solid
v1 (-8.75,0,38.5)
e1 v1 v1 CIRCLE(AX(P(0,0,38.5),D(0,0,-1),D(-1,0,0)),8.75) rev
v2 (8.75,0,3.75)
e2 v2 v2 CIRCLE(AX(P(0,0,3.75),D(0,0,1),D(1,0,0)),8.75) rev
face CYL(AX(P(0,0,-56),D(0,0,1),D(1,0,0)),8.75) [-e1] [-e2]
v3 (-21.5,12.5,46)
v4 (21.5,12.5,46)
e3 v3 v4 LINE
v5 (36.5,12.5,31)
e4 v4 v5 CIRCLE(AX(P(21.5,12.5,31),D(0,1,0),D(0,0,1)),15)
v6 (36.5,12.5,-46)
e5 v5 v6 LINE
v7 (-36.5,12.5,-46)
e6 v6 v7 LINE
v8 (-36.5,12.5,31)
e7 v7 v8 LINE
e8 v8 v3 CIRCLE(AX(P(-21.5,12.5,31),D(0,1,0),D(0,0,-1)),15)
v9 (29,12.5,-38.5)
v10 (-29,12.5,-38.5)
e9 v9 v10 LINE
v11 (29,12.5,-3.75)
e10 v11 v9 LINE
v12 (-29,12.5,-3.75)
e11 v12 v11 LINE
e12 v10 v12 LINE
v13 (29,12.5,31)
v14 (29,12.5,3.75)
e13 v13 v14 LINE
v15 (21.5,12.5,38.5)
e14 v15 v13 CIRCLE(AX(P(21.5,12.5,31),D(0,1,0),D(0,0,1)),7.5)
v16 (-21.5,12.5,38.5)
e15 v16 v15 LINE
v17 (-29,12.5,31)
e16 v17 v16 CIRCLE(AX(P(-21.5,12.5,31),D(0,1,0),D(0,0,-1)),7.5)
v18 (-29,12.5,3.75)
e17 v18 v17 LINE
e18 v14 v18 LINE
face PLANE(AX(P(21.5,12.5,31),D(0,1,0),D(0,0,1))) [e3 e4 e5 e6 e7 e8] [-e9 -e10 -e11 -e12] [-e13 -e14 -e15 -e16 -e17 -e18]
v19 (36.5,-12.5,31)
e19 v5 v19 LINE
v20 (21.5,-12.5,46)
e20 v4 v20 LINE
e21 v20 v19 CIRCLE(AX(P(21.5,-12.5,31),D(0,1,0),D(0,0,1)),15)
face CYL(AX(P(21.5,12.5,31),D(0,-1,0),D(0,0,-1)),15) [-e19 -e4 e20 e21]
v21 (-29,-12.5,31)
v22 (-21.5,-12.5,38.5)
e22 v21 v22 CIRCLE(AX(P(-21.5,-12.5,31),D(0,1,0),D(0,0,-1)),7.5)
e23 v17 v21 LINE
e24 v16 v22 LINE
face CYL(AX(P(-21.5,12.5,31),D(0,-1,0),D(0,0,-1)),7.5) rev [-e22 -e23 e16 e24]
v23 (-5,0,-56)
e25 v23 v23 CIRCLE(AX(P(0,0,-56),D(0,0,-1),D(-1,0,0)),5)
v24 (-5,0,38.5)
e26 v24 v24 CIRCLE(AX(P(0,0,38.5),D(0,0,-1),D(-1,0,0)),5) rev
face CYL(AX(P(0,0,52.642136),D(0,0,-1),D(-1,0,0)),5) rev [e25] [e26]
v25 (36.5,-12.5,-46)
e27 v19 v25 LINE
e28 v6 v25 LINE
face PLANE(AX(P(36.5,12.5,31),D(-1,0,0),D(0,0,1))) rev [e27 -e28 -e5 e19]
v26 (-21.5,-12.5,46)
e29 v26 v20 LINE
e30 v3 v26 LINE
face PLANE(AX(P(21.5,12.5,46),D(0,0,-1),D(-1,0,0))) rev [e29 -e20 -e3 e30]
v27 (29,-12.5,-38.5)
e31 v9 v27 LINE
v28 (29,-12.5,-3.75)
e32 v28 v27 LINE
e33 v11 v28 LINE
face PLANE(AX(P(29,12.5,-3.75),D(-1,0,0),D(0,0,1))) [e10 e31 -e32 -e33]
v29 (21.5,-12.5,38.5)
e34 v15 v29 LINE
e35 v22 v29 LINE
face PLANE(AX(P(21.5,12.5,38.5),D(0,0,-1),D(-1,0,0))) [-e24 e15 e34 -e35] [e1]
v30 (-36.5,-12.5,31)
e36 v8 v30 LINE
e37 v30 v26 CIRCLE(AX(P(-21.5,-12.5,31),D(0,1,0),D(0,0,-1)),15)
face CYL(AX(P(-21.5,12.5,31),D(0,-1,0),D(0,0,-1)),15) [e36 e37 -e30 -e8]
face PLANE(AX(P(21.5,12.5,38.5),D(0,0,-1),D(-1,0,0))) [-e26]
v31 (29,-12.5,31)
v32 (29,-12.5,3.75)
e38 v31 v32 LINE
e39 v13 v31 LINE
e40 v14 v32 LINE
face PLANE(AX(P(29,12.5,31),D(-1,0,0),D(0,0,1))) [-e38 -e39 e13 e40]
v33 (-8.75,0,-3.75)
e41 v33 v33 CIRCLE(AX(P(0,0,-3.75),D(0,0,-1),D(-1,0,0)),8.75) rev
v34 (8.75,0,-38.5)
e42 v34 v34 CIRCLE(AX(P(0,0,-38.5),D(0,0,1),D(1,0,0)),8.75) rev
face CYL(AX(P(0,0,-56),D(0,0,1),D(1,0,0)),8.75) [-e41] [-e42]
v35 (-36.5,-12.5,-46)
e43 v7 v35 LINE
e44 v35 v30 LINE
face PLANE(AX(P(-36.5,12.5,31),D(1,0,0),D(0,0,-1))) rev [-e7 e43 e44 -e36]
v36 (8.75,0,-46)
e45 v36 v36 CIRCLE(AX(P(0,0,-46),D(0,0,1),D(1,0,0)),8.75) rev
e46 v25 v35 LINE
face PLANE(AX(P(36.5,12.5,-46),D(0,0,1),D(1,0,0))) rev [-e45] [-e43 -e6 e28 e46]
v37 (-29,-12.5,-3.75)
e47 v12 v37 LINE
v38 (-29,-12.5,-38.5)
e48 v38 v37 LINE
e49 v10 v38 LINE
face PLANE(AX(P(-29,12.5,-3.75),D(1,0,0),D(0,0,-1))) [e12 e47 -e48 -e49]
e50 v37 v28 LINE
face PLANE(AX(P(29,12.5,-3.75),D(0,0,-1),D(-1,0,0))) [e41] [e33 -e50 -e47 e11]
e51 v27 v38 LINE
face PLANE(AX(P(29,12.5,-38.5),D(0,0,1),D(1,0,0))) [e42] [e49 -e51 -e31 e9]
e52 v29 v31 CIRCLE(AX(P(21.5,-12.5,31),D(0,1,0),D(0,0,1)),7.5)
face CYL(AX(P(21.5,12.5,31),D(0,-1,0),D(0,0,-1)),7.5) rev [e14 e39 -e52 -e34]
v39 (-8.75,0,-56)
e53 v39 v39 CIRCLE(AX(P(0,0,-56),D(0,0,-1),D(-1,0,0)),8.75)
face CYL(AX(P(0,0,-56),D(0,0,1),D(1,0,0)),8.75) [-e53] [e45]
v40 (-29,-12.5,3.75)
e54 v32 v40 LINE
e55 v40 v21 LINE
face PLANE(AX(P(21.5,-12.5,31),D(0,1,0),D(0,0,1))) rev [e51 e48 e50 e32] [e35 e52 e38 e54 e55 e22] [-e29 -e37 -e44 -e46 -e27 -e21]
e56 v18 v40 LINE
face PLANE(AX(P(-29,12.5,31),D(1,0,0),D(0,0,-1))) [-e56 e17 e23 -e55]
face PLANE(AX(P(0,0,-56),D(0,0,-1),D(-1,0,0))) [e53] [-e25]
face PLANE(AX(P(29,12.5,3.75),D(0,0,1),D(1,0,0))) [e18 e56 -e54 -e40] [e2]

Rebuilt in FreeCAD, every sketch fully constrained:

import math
import FreeCAD as App
import Part
import Sketcher

V = App.Vector
Q = App.Units.Quantity


def add_polygon(sketch, points):
    """Adds a closed chain of lines whose ends are joined by coincident constraints."""
    first, n = sketch.GeometryCount, len(points)
    for a, b in zip(points, points[1:] + points[:1]):
        sketch.addGeometry(Part.LineSegment(App.Vector(*a, 0), App.Vector(*b, 0)), False)
    for i in range(n):
        sketch.addConstraint(Sketcher.Constraint("Coincident", first + i, 2, first + (i + 1) % n, 1))

doc = App.newDocument("Part")
params = doc.addObject("Spreadsheet::Sheet", "Params")
for row, (alias, value) in enumerate([
    ("sketch1_radius", "15 mm"),
    ("sketch1_radius2", "7.5 mm"),
    ("sketch1_width", "43 mm"),
    ("sketch1_height", "77 mm"),
    ("sketch1_height2", "27.25 mm"),
    ("pad1_length", "25 mm"),
    ("sketch2_diameter", "17.5 mm"),
    ("pad2_length", "10 mm"),
    ("pad2_length2", "84.5 mm"),
    ("sketch3_diameter", "10 mm"),
    ("pocket1_length", "94.5 mm"),
], start=1):
    params.set(f"A{row}", alias)
    params.set(f"B{row}", "=" + value)
    params.setAlias(f"B{row}", alias)

body = doc.addObject("PartDesign::Body", "Body")

sketch1 = body.newObject("Sketcher::SketchObject", "Sketch")
sketch1.AttachmentSupport = (doc.getObject("XZ_Plane"), [""])
sketch1.MapMode = "FlatFace"
sketch1.addGeometry(Part.LineSegment(V(-22, 46, 0), V(22, 46, 0)), False)
sketch1.addGeometry(Part.ArcOfCircle(Part.Circle(V(22, 31, 0), V(0, 0, 1), 15), math.radians(0), math.radians(90)), False)
sketch1.addGeometry(Part.LineSegment(V(36, 31, 0), V(36, -46, 0)), False)
sketch1.addGeometry(Part.LineSegment(V(36, -46, 0), V(-36, -46, 0)), False)
sketch1.addGeometry(Part.LineSegment(V(-36, -46, 0), V(-36, 31, 0)), False)
sketch1.addGeometry(Part.ArcOfCircle(Part.Circle(V(-22, 31, 0), V(0, 0, 1), 15), math.radians(90), math.radians(180)), False)
sketch1.addGeometry(Part.LineSegment(V(-29, 31, 0), V(-29, 4, 0)), False)
sketch1.addGeometry(Part.LineSegment(V(-29, 4, 0), V(29, 4, 0)), False)
sketch1.addGeometry(Part.LineSegment(V(29, 4, 0), V(29, 31, 0)), False)
sketch1.addGeometry(Part.ArcOfCircle(Part.Circle(V(22, 31, 0), V(0, 0, 1), 8), math.radians(0), math.radians(90)), False)
sketch1.addGeometry(Part.LineSegment(V(22, 38, 0), V(-22, 38, 0)), False)
sketch1.addGeometry(Part.ArcOfCircle(Part.Circle(V(-22, 31, 0), V(0, 0, 1), 8), math.radians(90), math.radians(180)), False)
add_polygon(sketch1, [(-29, -4), (-29, -38), (29, -38), (29, -4)])
sketch1.addConstraint([
    Sketcher.Constraint("Tangent", 0, 2, 1, 2),
    Sketcher.Constraint("Tangent", 1, 1, 2, 1),
    Sketcher.Constraint("Coincident", 2, 2, 3, 1),
    Sketcher.Constraint("Coincident", 3, 2, 4, 1),
    Sketcher.Constraint("Tangent", 4, 2, 5, 2),
    Sketcher.Constraint("Tangent", 5, 1, 0, 1),
    Sketcher.Constraint("Coincident", 6, 2, 7, 1),
    Sketcher.Constraint("Coincident", 7, 2, 8, 1),
    Sketcher.Constraint("Tangent", 8, 2, 9, 1),
    Sketcher.Constraint("Tangent", 9, 2, 10, 1),
    Sketcher.Constraint("Tangent", 10, 2, 11, 1),
    Sketcher.Constraint("Tangent", 11, 2, 6, 1),
    Sketcher.Constraint("Horizontal", 0),
    Sketcher.Constraint("Vertical", 2),
    Sketcher.Constraint("Horizontal", 3),
    Sketcher.Constraint("Vertical", 4),
    Sketcher.Constraint("Vertical", 6),
    Sketcher.Constraint("Horizontal", 7),
    Sketcher.Constraint("Vertical", 8),
    Sketcher.Constraint("Horizontal", 10),
    Sketcher.Constraint("Vertical", 12),
    Sketcher.Constraint("Horizontal", 13),
    Sketcher.Constraint("Vertical", 14),
    Sketcher.Constraint("Horizontal", 15),
    Sketcher.Constraint("Coincident", 9, 3, 1, 3),
    Sketcher.Constraint("Coincident", 11, 3, 5, 3),
    Sketcher.Constraint("Equal", 1, 5),
    Sketcher.Constraint("Symmetric", 6, 2, 14, 2, -1, 1),
    Sketcher.Constraint("Vertical", 11, 2, 12, 2),
    Sketcher.Constraint("Vertical", 8, 2, 13, 2),
    Sketcher.Constraint("Radius", 1, Q("15 mm")),
    Sketcher.Constraint("Radius", 9, Q("7.5 mm")),
    Sketcher.Constraint("DistanceX", 0, 1, 0, 2, Q("43 mm")),
    Sketcher.Constraint("DistanceY", 2, 2, 2, 1, Q("77 mm")),
    Sketcher.Constraint("DistanceY", -1, 1, 1, 3, Q("31 mm")),
    Sketcher.Constraint("DistanceY", 6, 2, 6, 1, Q("27.25 mm")),
    Sketcher.Constraint("DistanceY", 12, 2, 12, 1, Q("34.75 mm")),
])
sketch1.setExpression("Constraints[34]", "Params.sketch1_radius")
sketch1.setExpression("Constraints[35]", "Params.sketch1_radius2")
sketch1.setExpression("Constraints[36]", "Params.sketch1_width")
sketch1.setExpression("Constraints[37]", "Params.sketch1_height")
sketch1.setExpression("Constraints[39]", "Params.sketch1_height2")
pad1 = body.newObject("PartDesign::Pad", "Pad")
pad1.Profile = sketch1
pad1.setExpression("Length", "Params.pad1_length")
pad1.Midplane = True

sketch2 = body.newObject("Sketcher::SketchObject", "Sketch001")
sketch2.AttachmentSupport = (doc.getObject("XY_Plane"), [""])
sketch2.MapMode = "FlatFace"
sketch2.AttachmentOffset = App.Placement(V(0, 0, -46), App.Rotation())
sketch2.addGeometry(Part.Circle(V(0, 0, 0), V(0, 0, 1), 9), False)
sketch2.addConstraint([
    Sketcher.Constraint("Coincident", 0, 3, -1, 1),
    Sketcher.Constraint("Diameter", 0, Q("17.5 mm")),
])
sketch2.setExpression("Constraints[1]", "Params.sketch2_diameter")
pad2 = body.newObject("PartDesign::Pad", "Pad001")
pad2.Profile = sketch2
pad2.Type = "TwoLengths"
pad2.setExpression("Length", "Params.pad2_length")
pad2.setExpression("Length2", "Params.pad2_length2")
pad2.Reversed = True

sketch3 = body.newObject("Sketcher::SketchObject", "Sketch002")
sketch3.AttachmentSupport = (doc.getObject("XY_Plane"), [""])
sketch3.MapMode = "FlatFace"
sketch3.AttachmentOffset = App.Placement(V(0, 0, -56), App.Rotation())
sketch3.addGeometry(Part.Circle(V(0, 0, 0), V(0, 0, 1), 5), False)
sketch3.addConstraint([
    Sketcher.Constraint("Coincident", 0, 3, -1, 1),
    Sketcher.Constraint("Diameter", 0, Q("10 mm")),
])
sketch3.setExpression("Constraints[1]", "Params.sketch3_diameter")
pocket1 = body.newObject("PartDesign::Pocket", "Pocket")
pocket1.Profile = sketch3
pocket1.setExpression("Length", "Params.pocket1_length")
pocket1.Reversed = True

doc.recompute()
